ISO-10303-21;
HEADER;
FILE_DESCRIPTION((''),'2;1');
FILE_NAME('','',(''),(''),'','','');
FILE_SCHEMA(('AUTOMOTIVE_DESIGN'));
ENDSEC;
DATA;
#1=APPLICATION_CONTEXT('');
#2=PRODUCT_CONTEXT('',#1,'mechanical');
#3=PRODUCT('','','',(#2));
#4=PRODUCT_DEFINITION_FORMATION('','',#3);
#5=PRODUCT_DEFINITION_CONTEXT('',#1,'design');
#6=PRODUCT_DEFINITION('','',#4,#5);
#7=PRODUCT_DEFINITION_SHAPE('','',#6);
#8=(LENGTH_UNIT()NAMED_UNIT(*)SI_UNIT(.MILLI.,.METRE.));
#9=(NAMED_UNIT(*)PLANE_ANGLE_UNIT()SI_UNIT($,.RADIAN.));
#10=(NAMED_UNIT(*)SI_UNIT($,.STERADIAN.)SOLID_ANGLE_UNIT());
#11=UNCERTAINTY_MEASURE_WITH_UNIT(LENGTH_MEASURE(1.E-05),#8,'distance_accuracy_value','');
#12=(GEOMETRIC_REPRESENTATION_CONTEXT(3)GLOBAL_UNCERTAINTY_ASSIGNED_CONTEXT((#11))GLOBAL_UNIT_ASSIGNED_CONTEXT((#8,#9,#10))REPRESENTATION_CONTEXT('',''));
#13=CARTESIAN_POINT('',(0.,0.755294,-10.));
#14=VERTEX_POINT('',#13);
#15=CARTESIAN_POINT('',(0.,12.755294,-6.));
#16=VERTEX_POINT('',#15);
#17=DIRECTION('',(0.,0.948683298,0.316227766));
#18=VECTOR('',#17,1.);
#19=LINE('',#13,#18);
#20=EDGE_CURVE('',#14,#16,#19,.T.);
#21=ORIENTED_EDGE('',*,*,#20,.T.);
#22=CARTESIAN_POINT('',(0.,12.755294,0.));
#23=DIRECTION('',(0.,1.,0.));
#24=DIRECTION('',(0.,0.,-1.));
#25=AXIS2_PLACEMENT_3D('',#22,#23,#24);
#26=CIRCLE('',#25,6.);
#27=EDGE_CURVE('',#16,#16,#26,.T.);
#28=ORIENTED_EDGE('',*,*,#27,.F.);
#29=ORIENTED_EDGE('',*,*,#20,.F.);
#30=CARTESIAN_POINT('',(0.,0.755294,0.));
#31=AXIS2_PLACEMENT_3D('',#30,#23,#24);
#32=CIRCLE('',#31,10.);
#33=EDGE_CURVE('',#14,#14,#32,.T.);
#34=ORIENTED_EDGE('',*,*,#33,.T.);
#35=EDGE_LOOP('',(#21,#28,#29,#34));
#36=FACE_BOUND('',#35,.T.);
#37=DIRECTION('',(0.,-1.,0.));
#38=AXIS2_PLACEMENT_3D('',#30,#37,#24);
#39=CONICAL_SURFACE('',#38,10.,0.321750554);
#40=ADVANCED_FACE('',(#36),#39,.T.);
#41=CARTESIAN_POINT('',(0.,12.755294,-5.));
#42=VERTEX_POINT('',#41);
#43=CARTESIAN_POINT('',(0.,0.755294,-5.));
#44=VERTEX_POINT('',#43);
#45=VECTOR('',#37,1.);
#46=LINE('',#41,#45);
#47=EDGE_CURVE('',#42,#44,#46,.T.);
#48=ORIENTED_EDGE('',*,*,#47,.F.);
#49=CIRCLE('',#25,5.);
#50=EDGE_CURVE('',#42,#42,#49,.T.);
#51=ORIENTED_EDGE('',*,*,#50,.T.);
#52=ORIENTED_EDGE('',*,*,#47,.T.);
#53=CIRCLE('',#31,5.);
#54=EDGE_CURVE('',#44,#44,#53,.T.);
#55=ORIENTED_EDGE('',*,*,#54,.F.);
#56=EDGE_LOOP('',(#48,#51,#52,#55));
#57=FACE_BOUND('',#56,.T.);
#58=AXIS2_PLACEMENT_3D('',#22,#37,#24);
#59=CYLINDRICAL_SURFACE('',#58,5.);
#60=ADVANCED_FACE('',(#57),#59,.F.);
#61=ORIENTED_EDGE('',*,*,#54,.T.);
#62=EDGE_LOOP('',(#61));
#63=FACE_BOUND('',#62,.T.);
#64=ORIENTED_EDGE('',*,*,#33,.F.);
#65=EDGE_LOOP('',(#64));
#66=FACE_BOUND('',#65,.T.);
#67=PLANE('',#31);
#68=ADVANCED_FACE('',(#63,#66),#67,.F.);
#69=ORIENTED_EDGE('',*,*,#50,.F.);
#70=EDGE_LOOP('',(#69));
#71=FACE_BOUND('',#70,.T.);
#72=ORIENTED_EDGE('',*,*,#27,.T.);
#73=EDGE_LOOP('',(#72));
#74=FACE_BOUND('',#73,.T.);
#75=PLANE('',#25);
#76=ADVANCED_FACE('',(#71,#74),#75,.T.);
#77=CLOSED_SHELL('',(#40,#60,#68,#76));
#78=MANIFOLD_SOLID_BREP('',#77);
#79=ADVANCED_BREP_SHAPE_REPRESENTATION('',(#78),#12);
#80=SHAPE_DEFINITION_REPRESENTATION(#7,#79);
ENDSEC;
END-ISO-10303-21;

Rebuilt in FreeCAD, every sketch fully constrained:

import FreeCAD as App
import Part
import Sketcher

V = App.Vector
Q = App.Units.Quantity

doc = App.newDocument("Part")
params = doc.addObject("Spreadsheet::Sheet", "Params")
for row, (alias, value) in enumerate([
    ("sketch1_width", "5 mm"),
    ("sketch1_width2", "1 mm"),
    ("sketch1_height", "12 mm"),
    ("revolution_angle", "360 deg"),
], start=1):
    params.set(f"A{row}", alias)
    params.set(f"B{row}", "=" + value)
    params.setAlias(f"B{row}", alias)

body = doc.addObject("PartDesign::Body", "Body")

sketch1 = body.newObject("Sketcher::SketchObject", "Sketch")
sketch1.AttachmentSupport = (doc.getObject("XY_Plane"), [""])
sketch1.MapMode = "FlatFace"
sketch1.addGeometry(Part.LineSegment(V(5, 0.8, 0), V(10, 0.8, 0)), False)
sketch1.addGeometry(Part.LineSegment(V(10, 0.8, 0), V(6, 12.8, 0)), False)
sketch1.addGeometry(Part.LineSegment(V(6, 12.8, 0), V(5, 12.8, 0)), False)
sketch1.addGeometry(Part.LineSegment(V(5, 12.8, 0), V(5, 0.8, 0)), False)
sketch1.addConstraint(Sketcher.Constraint("Coincident", 0, 2, 1, 1))
sketch1.addConstraint(Sketcher.Constraint("Coincident", 1, 2, 2, 1))
sketch1.addConstraint(Sketcher.Constraint("Coincident", 2, 2, 3, 1))
sketch1.addConstraint(Sketcher.Constraint("Coincident", 3, 2, 0, 1))
sketch1.addConstraint(Sketcher.Constraint("Horizontal", 0))
sketch1.addConstraint(Sketcher.Constraint("Horizontal", 2))
sketch1.addConstraint(Sketcher.Constraint("Vertical", 3))
sketch1.addConstraint(Sketcher.Constraint("DistanceX", 0, 1, 0, 2, Q("5 mm")))
sketch1.addConstraint(Sketcher.Constraint("DistanceX", 2, 2, 2, 1, Q("1 mm")))
sketch1.addConstraint(Sketcher.Constraint("DistanceY", 3, 2, 3, 1, Q("12 mm")))
sketch1.addConstraint(Sketcher.Constraint("DistanceX", -1, 1, 0, 2, Q("10 mm")))
sketch1.addConstraint(Sketcher.Constraint("DistanceY", -1, 1, 0, 2, Q("0.755294 mm")))
sketch1.setExpression("Constraints[7]", "Params.sketch1_width")
sketch1.setExpression("Constraints[8]", "Params.sketch1_width2")
sketch1.setExpression("Constraints[9]", "Params.sketch1_height")
revolution = body.newObject("PartDesign::Revolution", "Revolution")
revolution.Profile = sketch1
revolution.ReferenceAxis = (sketch1, ["V_Axis"])
revolution.setExpression("Angle", "Params.revolution_angle")

doc.recompute()
